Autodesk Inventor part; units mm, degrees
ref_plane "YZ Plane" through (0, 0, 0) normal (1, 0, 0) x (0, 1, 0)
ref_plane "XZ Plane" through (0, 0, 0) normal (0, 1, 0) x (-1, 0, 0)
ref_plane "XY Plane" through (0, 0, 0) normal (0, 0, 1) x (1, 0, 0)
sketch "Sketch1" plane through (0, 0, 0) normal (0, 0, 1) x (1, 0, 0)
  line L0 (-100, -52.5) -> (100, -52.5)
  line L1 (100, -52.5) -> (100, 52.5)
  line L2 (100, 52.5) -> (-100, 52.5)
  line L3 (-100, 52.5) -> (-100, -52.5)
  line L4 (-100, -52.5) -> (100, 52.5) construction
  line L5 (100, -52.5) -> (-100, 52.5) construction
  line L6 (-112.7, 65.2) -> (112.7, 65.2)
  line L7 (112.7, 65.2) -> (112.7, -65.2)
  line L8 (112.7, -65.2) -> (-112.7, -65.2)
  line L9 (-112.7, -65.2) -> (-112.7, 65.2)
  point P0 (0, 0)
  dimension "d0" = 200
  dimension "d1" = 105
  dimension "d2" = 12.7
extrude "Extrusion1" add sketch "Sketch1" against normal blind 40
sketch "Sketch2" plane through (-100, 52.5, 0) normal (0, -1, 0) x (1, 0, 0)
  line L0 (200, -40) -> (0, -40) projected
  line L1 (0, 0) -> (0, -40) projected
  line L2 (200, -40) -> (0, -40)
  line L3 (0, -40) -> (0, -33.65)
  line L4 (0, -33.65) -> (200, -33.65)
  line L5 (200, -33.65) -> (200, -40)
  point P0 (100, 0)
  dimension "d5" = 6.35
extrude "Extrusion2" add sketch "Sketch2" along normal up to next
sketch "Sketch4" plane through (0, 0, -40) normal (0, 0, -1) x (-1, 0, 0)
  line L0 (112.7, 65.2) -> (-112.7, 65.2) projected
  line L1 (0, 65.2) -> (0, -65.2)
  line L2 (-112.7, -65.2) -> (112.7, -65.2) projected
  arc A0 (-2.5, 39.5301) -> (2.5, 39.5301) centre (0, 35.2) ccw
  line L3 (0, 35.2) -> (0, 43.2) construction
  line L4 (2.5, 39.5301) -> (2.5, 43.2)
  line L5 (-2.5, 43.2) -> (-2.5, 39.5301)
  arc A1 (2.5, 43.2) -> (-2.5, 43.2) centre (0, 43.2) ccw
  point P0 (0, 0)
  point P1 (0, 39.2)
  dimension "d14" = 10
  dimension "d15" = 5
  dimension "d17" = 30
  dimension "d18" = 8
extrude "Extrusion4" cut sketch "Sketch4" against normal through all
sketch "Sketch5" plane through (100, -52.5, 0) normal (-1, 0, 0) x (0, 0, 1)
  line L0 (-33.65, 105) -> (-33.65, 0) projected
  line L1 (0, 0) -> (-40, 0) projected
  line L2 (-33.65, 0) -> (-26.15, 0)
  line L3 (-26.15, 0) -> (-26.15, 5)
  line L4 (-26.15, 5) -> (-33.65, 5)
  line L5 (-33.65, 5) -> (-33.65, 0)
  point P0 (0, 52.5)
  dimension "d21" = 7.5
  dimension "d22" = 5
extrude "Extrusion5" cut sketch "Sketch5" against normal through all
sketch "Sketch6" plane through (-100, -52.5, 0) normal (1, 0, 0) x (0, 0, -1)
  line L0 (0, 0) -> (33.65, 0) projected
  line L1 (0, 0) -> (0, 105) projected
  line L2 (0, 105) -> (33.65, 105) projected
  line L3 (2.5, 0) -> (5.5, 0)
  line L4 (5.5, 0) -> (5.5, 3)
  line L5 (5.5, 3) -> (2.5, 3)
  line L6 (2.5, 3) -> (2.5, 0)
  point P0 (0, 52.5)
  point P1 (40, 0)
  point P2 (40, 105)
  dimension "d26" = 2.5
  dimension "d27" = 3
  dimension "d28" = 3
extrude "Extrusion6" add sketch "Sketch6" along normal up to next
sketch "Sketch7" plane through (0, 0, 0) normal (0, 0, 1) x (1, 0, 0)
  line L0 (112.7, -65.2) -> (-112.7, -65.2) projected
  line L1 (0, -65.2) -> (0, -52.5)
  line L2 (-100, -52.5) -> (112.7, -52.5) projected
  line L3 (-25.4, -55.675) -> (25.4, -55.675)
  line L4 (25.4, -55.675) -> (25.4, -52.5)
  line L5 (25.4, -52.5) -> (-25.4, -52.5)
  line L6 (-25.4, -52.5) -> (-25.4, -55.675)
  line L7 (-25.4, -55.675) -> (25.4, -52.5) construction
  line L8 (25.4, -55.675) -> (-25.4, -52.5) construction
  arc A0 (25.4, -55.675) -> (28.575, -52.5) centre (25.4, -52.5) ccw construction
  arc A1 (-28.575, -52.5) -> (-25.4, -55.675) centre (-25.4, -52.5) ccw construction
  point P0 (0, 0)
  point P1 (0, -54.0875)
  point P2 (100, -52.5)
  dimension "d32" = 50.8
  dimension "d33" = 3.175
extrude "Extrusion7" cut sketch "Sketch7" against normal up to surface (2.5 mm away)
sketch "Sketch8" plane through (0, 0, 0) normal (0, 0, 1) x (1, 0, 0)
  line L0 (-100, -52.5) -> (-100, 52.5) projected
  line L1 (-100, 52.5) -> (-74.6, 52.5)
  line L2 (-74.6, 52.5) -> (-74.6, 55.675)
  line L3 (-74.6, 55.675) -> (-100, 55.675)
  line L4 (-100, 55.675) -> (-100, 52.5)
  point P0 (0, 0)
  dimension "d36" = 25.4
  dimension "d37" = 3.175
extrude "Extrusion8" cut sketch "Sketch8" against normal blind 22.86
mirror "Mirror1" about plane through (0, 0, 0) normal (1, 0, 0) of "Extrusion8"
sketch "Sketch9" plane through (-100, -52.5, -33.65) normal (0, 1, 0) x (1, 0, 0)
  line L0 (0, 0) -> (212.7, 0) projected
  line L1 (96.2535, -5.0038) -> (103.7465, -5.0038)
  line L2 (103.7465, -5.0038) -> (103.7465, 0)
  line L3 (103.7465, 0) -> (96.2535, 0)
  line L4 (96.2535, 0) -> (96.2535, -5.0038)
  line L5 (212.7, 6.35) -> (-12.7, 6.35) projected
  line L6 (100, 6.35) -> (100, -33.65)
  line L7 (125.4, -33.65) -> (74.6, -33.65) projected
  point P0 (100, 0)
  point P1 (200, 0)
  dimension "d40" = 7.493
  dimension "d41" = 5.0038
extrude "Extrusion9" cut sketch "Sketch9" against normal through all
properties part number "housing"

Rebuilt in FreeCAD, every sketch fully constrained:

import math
import FreeCAD as App
import Part
import Sketcher
from FreeCAD import Vector
Q = App.Units.Quantity


def add_polygon(sketch, points):
    """Adds a closed chain of lines whose ends are joined by coincident constraints."""
    first, n = sketch.GeometryCount, len(points)
    for a, b in zip(points, points[1:] + points[:1]):
        sketch.addGeometry(Part.LineSegment(App.Vector(*a, 0), App.Vector(*b, 0)), False)
    for i in range(n):
        sketch.addConstraint(Sketcher.Constraint("Coincident", first + i, 2, first + (i + 1) % n, 1))

doc = App.newDocument("Part")
body = doc.addObject("PartDesign::Body", "Body")

# Sketch on XY plane
sketch1 = body.newObject("Sketcher::SketchObject", "Sketch")
sketch1.AttachmentSupport = (doc.getObject("XY_Plane"), [""])
sketch1.MapMode = "FlatFace"
add_polygon(sketch1, [(113, 65), (-113, 65), (-113, -65), (113, -65)])  # lines 0-3
add_polygon(sketch1, [(100, -52), (-100, -52), (-100, 52), (100, 52)])  # lines 4-7
sketch1.addConstraint([
    Sketcher.Constraint("Horizontal", 0),
    Sketcher.Constraint("Vertical", 1),
    Sketcher.Constraint("Horizontal", 2),
    Sketcher.Constraint("Vertical", 3),
    Sketcher.Constraint("Horizontal", 4),
    Sketcher.Constraint("Vertical", 5),
    Sketcher.Constraint("Horizontal", 6),
    Sketcher.Constraint("Vertical", 7),
    Sketcher.Constraint("Symmetric", 0, 2, 2, 2, -1, 1),
    Sketcher.Constraint("Symmetric", 4, 2, 6, 2, -1, 1),
    Sketcher.Constraint("DistanceX", 4, 2, 4, 1, Q("200 mm")),
    Sketcher.Constraint("DistanceY", 5, 1, 5, 2, Q("105 mm")),
    Sketcher.Constraint("DistanceX", 1, 2, 4, 2, Q("12.7 mm")),
    Sketcher.Constraint("DistanceY", 1, 2, 4, 2, Q("12.7 mm")),
])
pad1 = body.newObject("PartDesign::Pad", "Pad")
pad1.Profile = sketch1
pad1.Length = 40
pad1.Reversed = True

# Sketch on XZ plane
sketch2 = body.newObject("Sketcher::SketchObject", "Sketch001")
sketch2.AttachmentSupport = (doc.getObject("XZ_Plane"), [""])
sketch2.MapMode = "FlatFace"
sketch2.AttachmentOffset = App.Placement(Vector(0, 0, -52.5), App.Rotation())
add_polygon(sketch2, [(-100, -40), (100, -40), (100, -34), (-100, -34)])  # lines 0-3
sketch2.addConstraint([
    Sketcher.Constraint("Horizontal", 0),
    Sketcher.Constraint("Vertical", 1),
    Sketcher.Constraint("Horizontal", 2),
    Sketcher.Constraint("Vertical", 3),
    Sketcher.Constraint("DistanceY", 1, 1, 1, 2, Q("6.35 mm")),
    Sketcher.Constraint("DistanceX", 0, 1, 0, 2, Q("200 mm")),
    Sketcher.Constraint("DistanceX", -1, 1, 0, 2, Q("100 mm")),
    Sketcher.Constraint("DistanceY", 0, 2, -1, 1, Q("40 mm")),
])
pad2 = body.newObject("PartDesign::Pad", "Pad001")
pad2.Profile = sketch2
pad2.Type = "UpToFirst"

# Sketch on XY plane
sketch3 = body.newObject("Sketcher::SketchObject", "Sketch002")
sketch3.AttachmentSupport = (doc.getObject("XY_Plane"), [""])
sketch3.MapMode = "FlatFace"
sketch3.AttachmentOffset = App.Placement(Vector(0, 0, -40), App.Rotation())
sketch3.addGeometry([
    Part.ArcOfCircle(Part.Circle(Vector(0, 43.2, 0), Vector(0, 0, 1), 2.5), math.radians(0), math.radians(180)),
    Part.LineSegment(Vector(2.5, 43.2, 0), Vector(2.5, 39.5, 0)),
    Part.ArcOfCircle(Part.Circle(Vector(0, 35.2, 0), Vector(0, 0, 1), 5), math.radians(120), math.radians(420)),
    Part.LineSegment(Vector(-2.5, 39.5, 0), Vector(-2.5, 43.2, 0)),
], False)
sketch3.addConstraint([
    Sketcher.Constraint("Tangent", 0, 1, 1, 1),
    Sketcher.Constraint("Coincident", 1, 2, 2, 2),
    Sketcher.Constraint("Coincident", 2, 1, 3, 1),
    Sketcher.Constraint("Tangent", 3, 2, 0, 2),
    Sketcher.Constraint("Vertical", 1),
    Sketcher.Constraint("Vertical", 3),
    Sketcher.Constraint("Symmetric", 1, 2, 2, 1, -2),
    Sketcher.Constraint("Radius", 2, Q("5 mm")),
    Sketcher.Constraint("Radius", 0, Q("2.5 mm")),
    Sketcher.Constraint("DistanceY", 2, 3, 0, 3, Q("8 mm")),
    Sketcher.Constraint("DistanceY", -1, 1, 0, 3, Q("43.2 mm")),
])
pocket1 = body.newObject("PartDesign::Pocket", "Pocket")
pocket1.Profile = sketch3
pocket1.Type = "ThroughAll"
pocket1.Reversed = True

# Sketch on YZ plane
sketch4 = body.newObject("Sketcher::SketchObject", "Sketch003")
sketch4.AttachmentSupport = (doc.getObject("YZ_Plane"), [""])
sketch4.MapMode = "FlatFace"
sketch4.AttachmentOffset = App.Placement(Vector(0, 0, 100), App.Rotation())
add_polygon(sketch4, [(-48, -26), (-48, -34), (-52, -34), (-52, -26)])  # lines 0-3
sketch4.addConstraint([
    Sketcher.Constraint("Vertical", 0),
    Sketcher.Constraint("Horizontal", 1),
    Sketcher.Constraint("Vertical", 2),
    Sketcher.Constraint("Horizontal", 3),
    Sketcher.Constraint("DistanceX", 1, 2, 1, 1, Q("5 mm")),
    Sketcher.Constraint("DistanceY", 0, 2, 0, 1, Q("7.5 mm")),
    Sketcher.Constraint("DistanceX", 0, 2, -1, 1, Q("47.5 mm")),
    Sketcher.Constraint("DistanceY", 0, 2, -1, 1, Q("33.65 mm")),
])
pocket2 = body.newObject("PartDesign::Pocket", "Pocket001")
pocket2.Profile = sketch4
pocket2.Type = "ThroughAll"
pocket2.Reversed = True

# Sketch on YZ plane
sketch5 = body.newObject("Sketcher::SketchObject", "Sketch004")
sketch5.AttachmentSupport = (doc.getObject("YZ_Plane"), [""])
sketch5.MapMode = "FlatFace"
sketch5.AttachmentOffset = App.Placement(Vector(0, 0, -100), App.Rotation())
add_polygon(sketch5, [(-49.5, -2.5), (-52.5, -2.5), (-52.5, -5.5), (-49.5, -5.5)])  # lines 0-3
sketch5.addConstraint([
    Sketcher.Constraint("Horizontal", 0),
    Sketcher.Constraint("Vertical", 1),
    Sketcher.Constraint("Horizontal", 2),
    Sketcher.Constraint("Vertical", 3),
    Sketcher.Constraint("Equal", 2, 1),
    Sketcher.Constraint("DistanceX", 0, 2, 0, 1, Q("3 mm")),
    Sketcher.Constraint("DistanceY", 0, 2, -1, 1, Q("2.5 mm")),
    Sketcher.Constraint("DistanceX", 0, 2, -1, 1, Q("52.5 mm")),
])
pad3 = body.newObject("PartDesign::Pad", "Pad002")
pad3.Profile = sketch5
pad3.Type = "UpToFirst"

# Sketch on XY plane
sketch6 = body.newObject("Sketcher::SketchObject", "Sketch005")
sketch6.AttachmentSupport = (doc.getObject("XY_Plane"), [""])
sketch6.MapMode = "FlatFace"
add_polygon(sketch6, [(-25.4, -55.7), (25.4, -55.7), (25.4, -52.5), (-25.4, -52.5)])  # lines 0-3
sketch6.addConstraint([
    Sketcher.Constraint("Horizontal", 0),
    Sketcher.Constraint("Vertical", 1),
    Sketcher.Constraint("Horizontal", 2),
    Sketcher.Constraint("Vertical", 3),
    Sketcher.Constraint("DistanceX", 0, 1, 0, 2, Q("50.8 mm")),
    Sketcher.Constraint("DistanceY", 1, 1, 1, 2, Q("3.175 mm")),
    Sketcher.Constraint("DistanceX", -1, 1, 0, 2, Q("25.4 mm")),
    Sketcher.Constraint("DistanceY", 1, 2, -1, 1, Q("52.5 mm")),
])
pocket3 = body.newObject("PartDesign::Pocket", "Pocket002")
pocket3.Profile = sketch6
pocket3.Length = 2.5

# Sketch on XY plane
sketch7 = body.newObject("Sketcher::SketchObject", "Sketch006")
sketch7.AttachmentSupport = (doc.getObject("XY_Plane"), [""])
sketch7.MapMode = "FlatFace"
add_polygon(sketch7, [(-100, 55.7), (-100, 52.5), (-74.6, 52.5), (-74.6, 55.7)])  # lines 0-3
sketch7.addConstraint([
    Sketcher.Constraint("Vertical", 0),
    Sketcher.Constraint("Horizontal", 1),
    Sketcher.Constraint("Vertical", 2),
    Sketcher.Constraint("Horizontal", 3),
    Sketcher.Constraint("DistanceX", 1, 1, 1, 2, Q("25.4 mm")),
    Sketcher.Constraint("DistanceY", 0, 2, 0, 1, Q("3.175 mm")),
    Sketcher.Constraint("DistanceX", 0, 2, -1, 1, Q("100 mm")),
    Sketcher.Constraint("DistanceY", -1, 1, 0, 2, Q("52.5 mm")),
])
pocket4 = body.newObject("PartDesign::Pocket", "Pocket003")
pocket4.Profile = sketch7
pocket4.Length = 22.86
doc.recompute()

mirrored = body.newObject("PartDesign::Mirrored", "Mirrored")
mirrored.Originals = [pocket4]
mirrored.MirrorPlane = (doc.getObject("YZ_Plane"), [""])
body.Tip = mirrored

# Sketch on XZ plane
sketch8 = body.newObject("Sketcher::SketchObject", "Sketch007")
sketch8.AttachmentSupport = (doc.getObject("XZ_Plane"), [""])
sketch8.MapMode = "FlatFace"
sketch8.AttachmentOffset = App.Placement(Vector(0, 0, 52.5), App.Rotation())
add_polygon(sketch8, [(-4, -34), (-4, -29), (4, -29), (4, -34)])  # lines 0-3
sketch8.addConstraint([
    Sketcher.Constraint("Vertical", 0),
    Sketcher.Constraint("Horizontal", 1),
    Sketcher.Constraint("Vertical", 2),
    Sketcher.Constraint("Horizontal", 3),
    Sketcher.Constraint("DistanceX", 1, 1, 1, 2, Q("7.493 mm")),
    Sketcher.Constraint("DistanceY", 0, 1, 0, 2, Q("5.0038 mm")),
    Sketcher.Constraint("DistanceY", 2, 2, -1, 1, Q("33.65 mm")),
    Sketcher.Constraint("DistanceX", 0, 2, -1, 1, Q("3.7465 mm")),
])
pocket5 = body.newObject("PartDesign::Pocket", "Pocket004")
pocket5.Profile = sketch8
pocket5.Type = "ThroughAll"
pocket5.Reversed = True

doc.recompute()
